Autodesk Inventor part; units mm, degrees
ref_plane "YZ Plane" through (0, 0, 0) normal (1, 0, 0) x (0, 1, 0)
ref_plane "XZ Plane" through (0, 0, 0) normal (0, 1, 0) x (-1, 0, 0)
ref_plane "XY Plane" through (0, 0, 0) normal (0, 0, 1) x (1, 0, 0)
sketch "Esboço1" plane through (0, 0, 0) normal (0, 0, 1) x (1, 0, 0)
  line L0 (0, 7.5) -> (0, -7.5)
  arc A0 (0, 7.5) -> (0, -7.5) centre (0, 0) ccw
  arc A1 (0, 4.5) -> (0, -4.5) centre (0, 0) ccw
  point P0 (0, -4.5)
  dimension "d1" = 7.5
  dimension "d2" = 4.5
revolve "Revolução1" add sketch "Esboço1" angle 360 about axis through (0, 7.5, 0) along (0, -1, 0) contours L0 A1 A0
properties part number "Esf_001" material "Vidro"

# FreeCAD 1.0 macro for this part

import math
import FreeCAD as App
import Part
import Sketcher
from FreeCAD import Vector

doc = App.newDocument("Part")
body = doc.addObject("PartDesign::Body", "Body")

# Sketch on XY plane
sketch1 = body.newObject("Sketcher::SketchObject", "Sketch")
sketch1.AttachmentSupport = (doc.getObject("XY_Plane"), [""])
sketch1.MapMode = "FlatFace"
sketch1.addGeometry(Part.LineSegment(Vector(0, 4.5, 0), Vector(0, 7.5, 0)), False)
sketch1.addGeometry(Part.ArcOfCircle(Part.Circle(Vector(0, 0, 0), Vector(0, 0, 1), 7.5), math.radians(90), math.radians(270)), False)
sketch1.addGeometry(Part.LineSegment(Vector(0, -7.5, 0), Vector(0, -4.5, 0)), False)
sketch1.addGeometry(Part.ArcOfCircle(Part.Circle(Vector(0, 0, 0), Vector(0, 0, 1), 4.5), math.radians(90), math.radians(270)), False)
sketch1.addConstraint(Sketcher.Constraint("Coincident", 0, 2, 1, 1))
sketch1.addConstraint(Sketcher.Constraint("Coincident", 1, 2, 2, 1))
sketch1.addConstraint(Sketcher.Constraint("Coincident", 2, 2, 3, 2))
sketch1.addConstraint(Sketcher.Constraint("Coincident", 3, 1, 0, 1))
sketch1.addConstraint(Sketcher.Constraint("Vertical", 0))
sketch1.addConstraint(Sketcher.Constraint("Vertical", 2))
sketch1.addConstraint(Sketcher.Constraint("Coincident", 1, 3, -1, 1))
sketch1.addConstraint(Sketcher.Constraint("Coincident", 3, 3, -1, 1))
sketch1.addConstraint(Sketcher.Constraint("PointOnObject", 0, 2, -2))
sketch1.addConstraint(Sketcher.Constraint("PointOnObject", 1, 2, -2))
sketch1.addConstraint(Sketcher.Constraint("Radius", 1, 7.5))
sketch1.addConstraint(Sketcher.Constraint("Radius", 3, 4.5))
revolution = body.newObject("PartDesign::Revolution", "Revolution")
revolution.Profile = sketch1
revolution.ReferenceAxis = (sketch1, ["V_Axis"])
revolution.Angle = 360

doc.recompute()
